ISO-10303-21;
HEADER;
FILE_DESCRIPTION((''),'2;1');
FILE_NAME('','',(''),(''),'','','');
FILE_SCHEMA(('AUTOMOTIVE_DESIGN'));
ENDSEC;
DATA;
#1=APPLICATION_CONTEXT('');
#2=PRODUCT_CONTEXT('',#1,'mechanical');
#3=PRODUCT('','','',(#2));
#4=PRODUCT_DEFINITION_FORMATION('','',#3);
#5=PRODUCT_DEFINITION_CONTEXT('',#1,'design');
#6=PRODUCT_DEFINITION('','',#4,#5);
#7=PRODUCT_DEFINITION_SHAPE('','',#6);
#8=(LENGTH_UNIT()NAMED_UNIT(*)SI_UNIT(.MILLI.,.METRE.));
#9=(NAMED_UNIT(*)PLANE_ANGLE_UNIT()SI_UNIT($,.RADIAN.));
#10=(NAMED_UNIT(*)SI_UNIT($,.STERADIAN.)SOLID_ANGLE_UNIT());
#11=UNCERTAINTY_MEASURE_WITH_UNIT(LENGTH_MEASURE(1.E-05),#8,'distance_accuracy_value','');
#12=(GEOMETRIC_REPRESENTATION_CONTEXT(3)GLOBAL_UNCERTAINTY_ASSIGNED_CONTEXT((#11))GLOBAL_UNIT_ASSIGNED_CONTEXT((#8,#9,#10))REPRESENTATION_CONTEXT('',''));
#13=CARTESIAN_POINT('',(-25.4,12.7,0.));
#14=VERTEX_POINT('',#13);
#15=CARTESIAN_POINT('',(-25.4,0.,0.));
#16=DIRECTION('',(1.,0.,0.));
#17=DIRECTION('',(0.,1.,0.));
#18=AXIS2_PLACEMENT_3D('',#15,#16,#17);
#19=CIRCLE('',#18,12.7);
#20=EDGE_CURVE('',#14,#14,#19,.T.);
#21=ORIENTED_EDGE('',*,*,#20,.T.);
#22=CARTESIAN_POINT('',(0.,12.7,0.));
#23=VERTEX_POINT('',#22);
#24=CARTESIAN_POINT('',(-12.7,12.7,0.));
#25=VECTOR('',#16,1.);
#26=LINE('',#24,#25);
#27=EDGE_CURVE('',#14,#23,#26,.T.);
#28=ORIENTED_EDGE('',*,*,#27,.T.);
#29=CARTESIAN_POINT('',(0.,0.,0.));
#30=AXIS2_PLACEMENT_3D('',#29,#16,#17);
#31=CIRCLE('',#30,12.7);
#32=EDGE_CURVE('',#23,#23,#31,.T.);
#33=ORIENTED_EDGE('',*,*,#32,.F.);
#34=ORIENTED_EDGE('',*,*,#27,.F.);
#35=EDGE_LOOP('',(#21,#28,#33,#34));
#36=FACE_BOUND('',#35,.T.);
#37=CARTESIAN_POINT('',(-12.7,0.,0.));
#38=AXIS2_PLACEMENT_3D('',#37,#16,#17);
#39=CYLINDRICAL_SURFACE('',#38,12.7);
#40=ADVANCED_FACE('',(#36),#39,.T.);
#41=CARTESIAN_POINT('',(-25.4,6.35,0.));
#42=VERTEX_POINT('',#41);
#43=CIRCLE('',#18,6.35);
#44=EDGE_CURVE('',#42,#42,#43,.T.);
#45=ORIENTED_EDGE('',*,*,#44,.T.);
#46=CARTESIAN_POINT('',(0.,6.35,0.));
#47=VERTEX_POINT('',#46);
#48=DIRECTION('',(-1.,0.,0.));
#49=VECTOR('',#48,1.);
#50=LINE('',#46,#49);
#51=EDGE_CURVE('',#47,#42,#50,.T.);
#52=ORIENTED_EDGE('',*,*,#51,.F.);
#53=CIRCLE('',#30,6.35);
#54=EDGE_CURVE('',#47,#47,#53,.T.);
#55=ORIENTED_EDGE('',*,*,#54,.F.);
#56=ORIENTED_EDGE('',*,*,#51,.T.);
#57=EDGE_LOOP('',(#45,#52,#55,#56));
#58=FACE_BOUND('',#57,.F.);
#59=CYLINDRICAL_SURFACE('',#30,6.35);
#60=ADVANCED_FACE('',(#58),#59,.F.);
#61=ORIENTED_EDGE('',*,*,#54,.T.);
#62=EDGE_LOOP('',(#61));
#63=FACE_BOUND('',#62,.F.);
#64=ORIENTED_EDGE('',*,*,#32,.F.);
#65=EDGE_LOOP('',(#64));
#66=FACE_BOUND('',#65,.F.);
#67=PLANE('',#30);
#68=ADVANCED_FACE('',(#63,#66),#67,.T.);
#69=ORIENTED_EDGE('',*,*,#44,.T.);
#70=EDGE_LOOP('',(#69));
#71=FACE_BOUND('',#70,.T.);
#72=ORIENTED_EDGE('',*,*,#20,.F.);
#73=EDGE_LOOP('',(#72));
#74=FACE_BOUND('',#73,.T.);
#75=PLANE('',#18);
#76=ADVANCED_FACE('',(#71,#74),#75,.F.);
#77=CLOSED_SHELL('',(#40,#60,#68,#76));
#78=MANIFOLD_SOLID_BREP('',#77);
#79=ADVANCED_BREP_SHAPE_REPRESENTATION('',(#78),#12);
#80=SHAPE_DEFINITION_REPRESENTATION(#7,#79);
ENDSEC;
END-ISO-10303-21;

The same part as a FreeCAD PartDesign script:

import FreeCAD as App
import Part
import Sketcher

V = App.Vector
Q = App.Units.Quantity

doc = App.newDocument("Part")
body = doc.addObject("PartDesign::Body", "Body")

sketch1 = doc.addObject("Sketcher::SketchObject", "Sketch")
body.addObject(sketch1)
sketch1.AttachmentSupport = (doc.XY_Plane, [""])
sketch1.MapMode = "FlatFace"
sketch1.addGeometry(Part.LineSegment(V(-25, 13, 0), V(-25, 0, 0)), False)
sketch1.addGeometry(Part.LineSegment(V(-25, 0, 0), V(0, 0, 0)), False)
sketch1.addGeometry(Part.LineSegment(V(0, 0, 0), V(0, 13, 0)), False)
sketch1.addGeometry(Part.LineSegment(V(0, 13, 0), V(-25, 13, 0)), False)
sketch1.addConstraint(Sketcher.Constraint("Coincident", 0, 2, 1, 1))
sketch1.addConstraint(Sketcher.Constraint("Coincident", 1, 2, 2, 1))
sketch1.addConstraint(Sketcher.Constraint("Coincident", 2, 2, 3, 1))
sketch1.addConstraint(Sketcher.Constraint("Coincident", 3, 2, 0, 1))
sketch1.addConstraint(Sketcher.Constraint("Vertical", 0))
sketch1.addConstraint(Sketcher.Constraint("Horizontal", 1))
sketch1.addConstraint(Sketcher.Constraint("Vertical", 2))
sketch1.addConstraint(Sketcher.Constraint("Horizontal", 3))
sketch1.addConstraint(Sketcher.Constraint("Coincident", 1, 2, -1, 1))
sketch1.addConstraint(Sketcher.Constraint("DistanceX", 1, 1, 1, 2, Q("1 in")))
sketch1.addConstraint(Sketcher.Constraint("DistanceY", 0, 2, 0, 1, Q("0.5 in")))
revolution = doc.addObject("PartDesign::Revolution", "Revolution")
body.addObject(revolution)
revolution.Profile = sketch1
revolution.ReferenceAxis = (sketch1, ["H_Axis"])
revolution.Angle = 360

sketch2 = doc.addObject("Sketcher::SketchObject", "Sketch001")
body.addObject(sketch2)
sketch2.AttachmentSupport = (doc.YZ_Plane, [""])
sketch2.MapMode = "FlatFace"
sketch2.addGeometry(Part.Circle(V(0, 0, 0), V(0, 0, 1), 6), False)
sketch2.addConstraint(Sketcher.Constraint("Coincident", 0, 3, -1, 1))
sketch2.addConstraint(Sketcher.Constraint("Diameter", 0, Q("0.5 in")))
pocket1 = doc.addObject("PartDesign::Pocket", "Pocket")
body.addObject(pocket1)
pocket1.Profile = sketch2
pocket1.Type = "ThroughAll"

doc.recompute()
